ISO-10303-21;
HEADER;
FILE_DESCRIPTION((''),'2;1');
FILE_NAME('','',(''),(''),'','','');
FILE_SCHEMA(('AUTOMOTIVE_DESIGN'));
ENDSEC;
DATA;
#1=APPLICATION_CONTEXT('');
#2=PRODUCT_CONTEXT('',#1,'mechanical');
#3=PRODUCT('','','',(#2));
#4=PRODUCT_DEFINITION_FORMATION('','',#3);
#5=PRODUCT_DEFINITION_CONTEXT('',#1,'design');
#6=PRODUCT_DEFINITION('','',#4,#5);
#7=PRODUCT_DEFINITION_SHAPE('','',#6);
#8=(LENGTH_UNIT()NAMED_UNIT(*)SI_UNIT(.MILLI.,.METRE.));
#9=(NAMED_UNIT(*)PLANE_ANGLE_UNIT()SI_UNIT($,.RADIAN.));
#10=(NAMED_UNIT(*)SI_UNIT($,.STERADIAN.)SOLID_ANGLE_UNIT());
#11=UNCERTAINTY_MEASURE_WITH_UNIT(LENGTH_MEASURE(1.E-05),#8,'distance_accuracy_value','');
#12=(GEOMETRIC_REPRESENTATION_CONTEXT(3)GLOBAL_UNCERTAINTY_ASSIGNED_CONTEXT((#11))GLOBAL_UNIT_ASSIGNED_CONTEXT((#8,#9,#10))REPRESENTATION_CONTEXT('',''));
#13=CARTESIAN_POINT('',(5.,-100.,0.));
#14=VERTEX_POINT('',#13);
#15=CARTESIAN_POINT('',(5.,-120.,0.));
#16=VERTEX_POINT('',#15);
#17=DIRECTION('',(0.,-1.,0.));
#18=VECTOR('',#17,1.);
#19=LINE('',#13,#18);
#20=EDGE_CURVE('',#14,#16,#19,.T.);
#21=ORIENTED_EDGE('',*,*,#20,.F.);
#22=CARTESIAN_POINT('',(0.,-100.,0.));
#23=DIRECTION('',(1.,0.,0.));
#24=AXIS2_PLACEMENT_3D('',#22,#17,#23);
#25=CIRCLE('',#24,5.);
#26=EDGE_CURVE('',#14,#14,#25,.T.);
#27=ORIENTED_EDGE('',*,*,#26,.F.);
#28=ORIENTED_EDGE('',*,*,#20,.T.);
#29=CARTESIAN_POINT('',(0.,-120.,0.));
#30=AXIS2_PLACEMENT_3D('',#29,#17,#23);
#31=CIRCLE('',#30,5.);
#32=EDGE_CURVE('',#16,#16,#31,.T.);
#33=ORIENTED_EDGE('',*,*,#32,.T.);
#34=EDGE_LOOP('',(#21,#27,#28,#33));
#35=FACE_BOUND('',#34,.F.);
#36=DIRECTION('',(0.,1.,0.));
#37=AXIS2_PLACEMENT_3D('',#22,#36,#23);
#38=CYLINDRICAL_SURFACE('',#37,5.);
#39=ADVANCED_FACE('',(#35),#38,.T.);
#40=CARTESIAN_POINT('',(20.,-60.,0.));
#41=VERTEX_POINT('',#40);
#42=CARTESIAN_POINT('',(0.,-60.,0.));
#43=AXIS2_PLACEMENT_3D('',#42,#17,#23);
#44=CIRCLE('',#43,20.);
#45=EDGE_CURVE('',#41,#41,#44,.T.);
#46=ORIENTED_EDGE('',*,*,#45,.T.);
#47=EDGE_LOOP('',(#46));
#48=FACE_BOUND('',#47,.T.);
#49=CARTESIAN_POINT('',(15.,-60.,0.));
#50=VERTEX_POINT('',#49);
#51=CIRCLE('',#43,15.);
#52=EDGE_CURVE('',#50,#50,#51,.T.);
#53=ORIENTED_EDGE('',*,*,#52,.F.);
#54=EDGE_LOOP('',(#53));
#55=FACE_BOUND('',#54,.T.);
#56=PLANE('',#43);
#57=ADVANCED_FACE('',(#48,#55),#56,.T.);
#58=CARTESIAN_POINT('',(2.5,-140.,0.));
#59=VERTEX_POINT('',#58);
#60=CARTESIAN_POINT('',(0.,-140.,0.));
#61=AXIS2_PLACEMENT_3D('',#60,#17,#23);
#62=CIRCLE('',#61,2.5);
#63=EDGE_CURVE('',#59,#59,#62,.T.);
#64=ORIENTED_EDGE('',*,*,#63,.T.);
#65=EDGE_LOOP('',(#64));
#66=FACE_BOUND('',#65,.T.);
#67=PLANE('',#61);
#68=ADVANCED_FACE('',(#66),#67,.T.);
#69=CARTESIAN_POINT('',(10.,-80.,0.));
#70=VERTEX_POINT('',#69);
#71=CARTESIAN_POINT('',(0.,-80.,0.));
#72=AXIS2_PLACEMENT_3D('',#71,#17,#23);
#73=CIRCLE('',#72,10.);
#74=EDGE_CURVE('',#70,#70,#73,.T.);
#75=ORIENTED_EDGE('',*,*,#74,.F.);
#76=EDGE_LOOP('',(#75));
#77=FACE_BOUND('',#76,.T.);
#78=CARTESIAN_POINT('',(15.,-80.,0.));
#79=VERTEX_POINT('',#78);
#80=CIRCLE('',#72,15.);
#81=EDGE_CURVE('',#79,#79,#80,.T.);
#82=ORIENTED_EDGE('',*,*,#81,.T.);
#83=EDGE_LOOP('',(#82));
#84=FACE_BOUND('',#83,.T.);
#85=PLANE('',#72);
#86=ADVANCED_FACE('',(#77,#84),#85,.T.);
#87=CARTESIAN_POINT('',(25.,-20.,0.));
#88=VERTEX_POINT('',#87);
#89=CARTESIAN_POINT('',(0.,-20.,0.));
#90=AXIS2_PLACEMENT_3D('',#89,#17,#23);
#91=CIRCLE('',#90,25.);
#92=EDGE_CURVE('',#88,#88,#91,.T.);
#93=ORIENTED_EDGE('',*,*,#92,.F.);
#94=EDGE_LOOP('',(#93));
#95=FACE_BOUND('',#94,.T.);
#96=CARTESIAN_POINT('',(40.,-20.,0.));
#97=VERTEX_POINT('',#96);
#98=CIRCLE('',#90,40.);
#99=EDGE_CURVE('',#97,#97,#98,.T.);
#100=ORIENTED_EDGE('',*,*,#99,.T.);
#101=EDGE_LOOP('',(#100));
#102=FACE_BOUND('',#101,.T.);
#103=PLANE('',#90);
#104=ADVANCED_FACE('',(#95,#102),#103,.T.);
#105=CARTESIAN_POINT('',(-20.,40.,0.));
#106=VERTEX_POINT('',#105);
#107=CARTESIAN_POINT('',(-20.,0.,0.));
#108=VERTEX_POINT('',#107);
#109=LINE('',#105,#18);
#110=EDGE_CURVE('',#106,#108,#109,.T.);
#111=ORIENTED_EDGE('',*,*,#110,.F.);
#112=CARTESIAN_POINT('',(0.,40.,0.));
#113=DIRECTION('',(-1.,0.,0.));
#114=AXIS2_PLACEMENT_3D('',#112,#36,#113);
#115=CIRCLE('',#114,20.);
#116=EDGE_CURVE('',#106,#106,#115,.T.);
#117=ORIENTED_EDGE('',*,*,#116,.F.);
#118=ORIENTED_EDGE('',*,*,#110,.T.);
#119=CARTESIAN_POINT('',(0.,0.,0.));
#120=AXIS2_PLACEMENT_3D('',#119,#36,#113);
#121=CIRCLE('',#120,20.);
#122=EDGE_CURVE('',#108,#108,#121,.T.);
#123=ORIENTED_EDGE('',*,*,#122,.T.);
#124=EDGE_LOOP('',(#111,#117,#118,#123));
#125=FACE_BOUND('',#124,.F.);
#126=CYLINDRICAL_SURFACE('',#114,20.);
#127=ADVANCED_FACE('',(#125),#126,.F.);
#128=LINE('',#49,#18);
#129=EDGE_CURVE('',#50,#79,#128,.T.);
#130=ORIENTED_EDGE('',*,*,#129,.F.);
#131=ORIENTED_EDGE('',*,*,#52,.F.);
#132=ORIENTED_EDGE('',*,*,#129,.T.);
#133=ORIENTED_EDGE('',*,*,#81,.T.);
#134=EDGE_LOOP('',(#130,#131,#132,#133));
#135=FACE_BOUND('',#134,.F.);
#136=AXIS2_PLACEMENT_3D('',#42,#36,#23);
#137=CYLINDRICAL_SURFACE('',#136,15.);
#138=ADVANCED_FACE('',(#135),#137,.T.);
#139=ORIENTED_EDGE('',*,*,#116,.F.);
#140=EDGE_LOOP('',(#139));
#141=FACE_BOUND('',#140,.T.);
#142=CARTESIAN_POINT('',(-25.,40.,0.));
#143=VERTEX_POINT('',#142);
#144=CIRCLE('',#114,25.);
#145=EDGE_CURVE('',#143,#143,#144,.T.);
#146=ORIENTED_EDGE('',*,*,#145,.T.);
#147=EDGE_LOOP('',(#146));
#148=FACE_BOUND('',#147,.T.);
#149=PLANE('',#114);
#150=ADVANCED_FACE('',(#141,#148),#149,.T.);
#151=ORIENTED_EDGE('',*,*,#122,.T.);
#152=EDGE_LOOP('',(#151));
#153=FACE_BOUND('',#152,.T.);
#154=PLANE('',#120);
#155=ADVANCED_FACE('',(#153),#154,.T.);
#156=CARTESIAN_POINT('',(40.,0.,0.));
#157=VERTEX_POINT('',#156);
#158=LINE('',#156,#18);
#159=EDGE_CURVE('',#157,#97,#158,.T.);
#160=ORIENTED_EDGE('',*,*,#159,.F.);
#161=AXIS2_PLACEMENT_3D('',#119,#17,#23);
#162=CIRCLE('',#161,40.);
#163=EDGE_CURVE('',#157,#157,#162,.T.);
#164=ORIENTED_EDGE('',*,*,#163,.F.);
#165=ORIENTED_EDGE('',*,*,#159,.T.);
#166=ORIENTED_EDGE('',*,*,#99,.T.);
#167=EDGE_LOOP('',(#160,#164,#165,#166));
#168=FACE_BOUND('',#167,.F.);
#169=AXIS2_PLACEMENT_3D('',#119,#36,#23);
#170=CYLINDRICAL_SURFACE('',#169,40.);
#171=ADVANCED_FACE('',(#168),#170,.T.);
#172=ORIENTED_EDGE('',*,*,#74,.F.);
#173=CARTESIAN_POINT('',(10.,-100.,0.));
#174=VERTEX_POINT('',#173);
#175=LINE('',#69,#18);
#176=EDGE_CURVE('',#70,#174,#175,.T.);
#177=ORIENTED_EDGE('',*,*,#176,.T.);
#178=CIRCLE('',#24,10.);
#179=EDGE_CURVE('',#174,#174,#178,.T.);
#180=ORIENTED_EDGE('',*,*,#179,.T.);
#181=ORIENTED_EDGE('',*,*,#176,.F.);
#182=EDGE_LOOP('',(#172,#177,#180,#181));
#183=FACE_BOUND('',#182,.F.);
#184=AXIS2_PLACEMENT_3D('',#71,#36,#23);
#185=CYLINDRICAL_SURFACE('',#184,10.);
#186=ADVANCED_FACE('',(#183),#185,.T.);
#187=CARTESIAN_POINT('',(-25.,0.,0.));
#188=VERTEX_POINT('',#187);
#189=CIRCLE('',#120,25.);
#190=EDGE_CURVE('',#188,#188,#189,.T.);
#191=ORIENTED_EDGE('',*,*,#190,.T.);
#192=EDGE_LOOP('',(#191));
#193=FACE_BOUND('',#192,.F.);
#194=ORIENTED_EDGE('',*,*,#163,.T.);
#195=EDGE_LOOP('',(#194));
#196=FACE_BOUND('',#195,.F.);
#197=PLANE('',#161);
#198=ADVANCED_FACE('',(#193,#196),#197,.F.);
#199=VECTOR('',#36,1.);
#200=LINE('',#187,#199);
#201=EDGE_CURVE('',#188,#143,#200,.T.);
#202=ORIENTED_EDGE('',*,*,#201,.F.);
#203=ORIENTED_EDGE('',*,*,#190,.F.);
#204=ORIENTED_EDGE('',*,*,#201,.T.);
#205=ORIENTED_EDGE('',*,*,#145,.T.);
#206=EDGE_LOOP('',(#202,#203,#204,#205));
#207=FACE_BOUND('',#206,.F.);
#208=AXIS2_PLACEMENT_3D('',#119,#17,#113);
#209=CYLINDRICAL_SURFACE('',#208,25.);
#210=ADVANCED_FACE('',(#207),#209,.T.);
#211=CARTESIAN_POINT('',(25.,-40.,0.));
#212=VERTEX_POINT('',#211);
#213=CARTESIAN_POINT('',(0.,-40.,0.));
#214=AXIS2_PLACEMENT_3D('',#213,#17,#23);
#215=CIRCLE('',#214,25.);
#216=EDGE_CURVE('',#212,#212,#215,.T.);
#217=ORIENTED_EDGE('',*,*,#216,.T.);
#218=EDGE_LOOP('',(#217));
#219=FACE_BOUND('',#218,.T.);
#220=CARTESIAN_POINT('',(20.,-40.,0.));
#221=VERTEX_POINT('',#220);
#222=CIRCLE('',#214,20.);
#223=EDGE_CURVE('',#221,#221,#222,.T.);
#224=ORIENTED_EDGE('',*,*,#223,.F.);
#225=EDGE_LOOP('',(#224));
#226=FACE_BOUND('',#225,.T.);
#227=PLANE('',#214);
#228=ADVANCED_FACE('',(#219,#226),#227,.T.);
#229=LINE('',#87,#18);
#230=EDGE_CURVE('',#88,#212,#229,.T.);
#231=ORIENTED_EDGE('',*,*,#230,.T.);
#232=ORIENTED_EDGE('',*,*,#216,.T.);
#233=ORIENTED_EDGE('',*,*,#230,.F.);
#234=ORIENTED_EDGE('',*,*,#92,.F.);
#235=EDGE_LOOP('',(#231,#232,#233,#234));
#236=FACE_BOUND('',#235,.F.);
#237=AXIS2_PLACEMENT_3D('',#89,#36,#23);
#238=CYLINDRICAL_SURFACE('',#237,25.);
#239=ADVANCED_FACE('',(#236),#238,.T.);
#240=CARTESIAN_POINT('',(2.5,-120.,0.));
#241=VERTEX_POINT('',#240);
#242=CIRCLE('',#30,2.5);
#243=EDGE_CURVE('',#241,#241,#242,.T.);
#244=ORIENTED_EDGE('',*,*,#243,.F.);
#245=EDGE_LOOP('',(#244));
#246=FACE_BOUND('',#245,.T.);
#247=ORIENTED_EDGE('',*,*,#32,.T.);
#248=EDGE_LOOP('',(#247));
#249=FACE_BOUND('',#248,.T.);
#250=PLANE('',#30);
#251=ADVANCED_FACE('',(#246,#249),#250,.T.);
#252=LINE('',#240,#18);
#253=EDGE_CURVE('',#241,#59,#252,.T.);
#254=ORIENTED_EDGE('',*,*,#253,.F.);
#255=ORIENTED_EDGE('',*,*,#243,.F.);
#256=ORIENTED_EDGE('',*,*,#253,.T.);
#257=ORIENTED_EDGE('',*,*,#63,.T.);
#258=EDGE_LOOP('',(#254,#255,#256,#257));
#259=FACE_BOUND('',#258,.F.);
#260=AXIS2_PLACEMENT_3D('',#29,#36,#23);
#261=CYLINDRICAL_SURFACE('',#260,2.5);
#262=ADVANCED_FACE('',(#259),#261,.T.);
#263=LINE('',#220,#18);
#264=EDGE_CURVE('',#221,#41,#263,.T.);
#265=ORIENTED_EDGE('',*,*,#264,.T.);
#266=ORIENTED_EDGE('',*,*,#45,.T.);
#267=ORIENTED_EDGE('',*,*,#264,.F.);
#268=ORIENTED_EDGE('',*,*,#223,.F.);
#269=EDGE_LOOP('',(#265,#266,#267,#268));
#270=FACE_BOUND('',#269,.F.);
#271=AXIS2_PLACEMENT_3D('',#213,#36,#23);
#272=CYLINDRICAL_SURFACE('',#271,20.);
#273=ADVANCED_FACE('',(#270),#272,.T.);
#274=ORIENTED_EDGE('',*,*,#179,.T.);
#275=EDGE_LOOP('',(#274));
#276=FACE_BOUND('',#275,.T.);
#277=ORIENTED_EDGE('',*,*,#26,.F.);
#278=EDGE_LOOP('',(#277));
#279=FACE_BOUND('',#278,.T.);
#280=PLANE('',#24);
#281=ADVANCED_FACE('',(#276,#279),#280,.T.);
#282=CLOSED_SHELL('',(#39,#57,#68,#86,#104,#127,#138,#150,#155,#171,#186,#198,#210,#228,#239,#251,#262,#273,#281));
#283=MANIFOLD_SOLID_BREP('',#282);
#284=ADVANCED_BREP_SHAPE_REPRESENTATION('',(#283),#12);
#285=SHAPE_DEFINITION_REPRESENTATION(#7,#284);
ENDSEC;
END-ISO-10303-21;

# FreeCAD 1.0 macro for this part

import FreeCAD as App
import Part
import Sketcher

V = App.Vector

doc = App.newDocument("Part")
body = doc.addObject("PartDesign::Body", "Body")

sketch1 = doc.addObject("Sketcher::SketchObject", "Sketch")
body.addObject(sketch1)
sketch1.AttachmentSupport = (doc.XZ_Plane, [""])
sketch1.MapMode = "FlatFace"
sketch1.addGeometry(Part.Circle(V(0, 0, 0), V(0, 0, 1), 40), False)
sketch1.addConstraint([
    Sketcher.Constraint("Coincident", 0, 3, -1, 1),
    Sketcher.Constraint("Diameter", 0, 80.0),
])
pad1 = doc.addObject("PartDesign::Pad", "Pad")
body.addObject(pad1)
pad1.Profile = sketch1
pad1.Length = 20

sketch2 = doc.addObject("Sketcher::SketchObject", "Sketch001")
body.addObject(sketch2)
sketch2.AttachmentSupport = (doc.XZ_Plane, [""])
sketch2.MapMode = "FlatFace"
sketch2.AttachmentOffset = App.Placement(V(0, 0, 20), App.Rotation())
sketch2.addGeometry(Part.Circle(V(0, 0, 0), V(0, 0, 1), 25), False)
sketch2.addConstraint([
    Sketcher.Constraint("Coincident", 0, 3, -1, 1),
    Sketcher.Constraint("Diameter", 0, 50.0),
])
pad2 = doc.addObject("PartDesign::Pad", "Pad001")
body.addObject(pad2)
pad2.Profile = sketch2
pad2.Length = 20

sketch3 = doc.addObject("Sketcher::SketchObject", "Sketch002")
body.addObject(sketch3)
sketch3.AttachmentSupport = (doc.XZ_Plane, [""])
sketch3.MapMode = "FlatFace"
sketch3.AttachmentOffset = App.Placement(V(0, 0, 40), App.Rotation())
sketch3.addGeometry(Part.Circle(V(0, 0, 0), V(0, 0, 1), 20), False)
sketch3.addConstraint([
    Sketcher.Constraint("Coincident", 0, 3, -1, 1),
    Sketcher.Constraint("Diameter", 0, 40.0),
])
pad3 = doc.addObject("PartDesign::Pad", "Pad002")
body.addObject(pad3)
pad3.Profile = sketch3
pad3.Length = 20

sketch4 = doc.addObject("Sketcher::SketchObject", "Sketch003")
body.addObject(sketch4)
sketch4.AttachmentSupport = (doc.XZ_Plane, [""])
sketch4.MapMode = "FlatFace"
sketch4.AttachmentOffset = App.Placement(V(0, 0, 60), App.Rotation())
sketch4.addGeometry(Part.Circle(V(0, 0, 0), V(0, 0, 1), 15), False)
sketch4.addConstraint([
    Sketcher.Constraint("Coincident", 0, 3, -1, 1),
    Sketcher.Constraint("Diameter", 0, 30.0),
])
pad4 = doc.addObject("PartDesign::Pad", "Pad003")
body.addObject(pad4)
pad4.Profile = sketch4
pad4.Length = 20

sketch5 = doc.addObject("Sketcher::SketchObject", "Sketch004")
body.addObject(sketch5)
sketch5.AttachmentSupport = (doc.XZ_Plane, [""])
sketch5.MapMode = "FlatFace"
sketch5.AttachmentOffset = App.Placement(V(0, 0, 80), App.Rotation())
sketch5.addGeometry(Part.Circle(V(0, 0, 0), V(0, 0, 1), 10), False)
sketch5.addConstraint([
    Sketcher.Constraint("Coincident", 0, 3, -1, 1),
    Sketcher.Constraint("Diameter", 0, 20.0),
])
pad5 = doc.addObject("PartDesign::Pad", "Pad004")
body.addObject(pad5)
pad5.Profile = sketch5
pad5.Length = 20

sketch6 = doc.addObject("Sketcher::SketchObject", "Sketch005")
body.addObject(sketch6)
sketch6.AttachmentSupport = (doc.XZ_Plane, [""])
sketch6.MapMode = "FlatFace"
sketch6.AttachmentOffset = App.Placement(V(0, 0, 100), App.Rotation())
sketch6.addGeometry(Part.Circle(V(0, 0, 0), V(0, 0, 1), 5), False)
sketch6.addConstraint([
    Sketcher.Constraint("Coincident", 0, 3, -1, 1),
    Sketcher.Constraint("Diameter", 0, 10.0),
])
pad6 = doc.addObject("PartDesign::Pad", "Pad005")
body.addObject(pad6)
pad6.Profile = sketch6
pad6.Length = 20

sketch7 = doc.addObject("Sketcher::SketchObject", "Sketch006")
body.addObject(sketch7)
sketch7.AttachmentSupport = (doc.XZ_Plane, [""])
sketch7.MapMode = "FlatFace"
sketch7.AttachmentOffset = App.Placement(V(0, 0, 120), App.Rotation())
sketch7.addGeometry(Part.Circle(V(0, 0, 0), V(0, 0, 1), 2.5), False)
sketch7.addConstraint([
    Sketcher.Constraint("Coincident", 0, 3, -1, 1),
    Sketcher.Constraint("Diameter", 0, 5.0),
])
pad7 = doc.addObject("PartDesign::Pad", "Pad006")
body.addObject(pad7)
pad7.Profile = sketch7
pad7.Length = 20

sketch8 = doc.addObject("Sketcher::SketchObject", "Sketch007")
body.addObject(sketch8)
sketch8.AttachmentSupport = (doc.XZ_Plane, [""])
sketch8.MapMode = "FlatFace"
sketch8.addGeometry(Part.Circle(V(0, 0, 0), V(0, 0, 1), 25), False)
sketch8.addConstraint([
    Sketcher.Constraint("Coincident", 0, 3, -1, 1),
    Sketcher.Constraint("Diameter", 0, 50.0),
])
pad8 = doc.addObject("PartDesign::Pad", "Pad007")
body.addObject(pad8)
pad8.Profile = sketch8
pad8.Length = 40
pad8.Reversed = True

sketch9 = doc.addObject("Sketcher::SketchObject", "Sketch008")
body.addObject(sketch9)
sketch9.AttachmentSupport = (doc.XZ_Plane, [""])
sketch9.MapMode = "FlatFace"
sketch9.AttachmentOffset = App.Placement(V(0, 0, -40), App.Rotation())
sketch9.addGeometry(Part.Circle(V(0, 0, 0), V(0, 0, 1), 20), False)
sketch9.addConstraint([
    Sketcher.Constraint("Coincident", 0, 3, -1, 1),
    Sketcher.Constraint("Diameter", 0, 40.0),
])
pocket1 = doc.addObject("PartDesign::Pocket", "Pocket")
body.addObject(pocket1)
pocket1.Profile = sketch9
pocket1.Length = 40
pocket1.Reversed = True

doc.recompute()
